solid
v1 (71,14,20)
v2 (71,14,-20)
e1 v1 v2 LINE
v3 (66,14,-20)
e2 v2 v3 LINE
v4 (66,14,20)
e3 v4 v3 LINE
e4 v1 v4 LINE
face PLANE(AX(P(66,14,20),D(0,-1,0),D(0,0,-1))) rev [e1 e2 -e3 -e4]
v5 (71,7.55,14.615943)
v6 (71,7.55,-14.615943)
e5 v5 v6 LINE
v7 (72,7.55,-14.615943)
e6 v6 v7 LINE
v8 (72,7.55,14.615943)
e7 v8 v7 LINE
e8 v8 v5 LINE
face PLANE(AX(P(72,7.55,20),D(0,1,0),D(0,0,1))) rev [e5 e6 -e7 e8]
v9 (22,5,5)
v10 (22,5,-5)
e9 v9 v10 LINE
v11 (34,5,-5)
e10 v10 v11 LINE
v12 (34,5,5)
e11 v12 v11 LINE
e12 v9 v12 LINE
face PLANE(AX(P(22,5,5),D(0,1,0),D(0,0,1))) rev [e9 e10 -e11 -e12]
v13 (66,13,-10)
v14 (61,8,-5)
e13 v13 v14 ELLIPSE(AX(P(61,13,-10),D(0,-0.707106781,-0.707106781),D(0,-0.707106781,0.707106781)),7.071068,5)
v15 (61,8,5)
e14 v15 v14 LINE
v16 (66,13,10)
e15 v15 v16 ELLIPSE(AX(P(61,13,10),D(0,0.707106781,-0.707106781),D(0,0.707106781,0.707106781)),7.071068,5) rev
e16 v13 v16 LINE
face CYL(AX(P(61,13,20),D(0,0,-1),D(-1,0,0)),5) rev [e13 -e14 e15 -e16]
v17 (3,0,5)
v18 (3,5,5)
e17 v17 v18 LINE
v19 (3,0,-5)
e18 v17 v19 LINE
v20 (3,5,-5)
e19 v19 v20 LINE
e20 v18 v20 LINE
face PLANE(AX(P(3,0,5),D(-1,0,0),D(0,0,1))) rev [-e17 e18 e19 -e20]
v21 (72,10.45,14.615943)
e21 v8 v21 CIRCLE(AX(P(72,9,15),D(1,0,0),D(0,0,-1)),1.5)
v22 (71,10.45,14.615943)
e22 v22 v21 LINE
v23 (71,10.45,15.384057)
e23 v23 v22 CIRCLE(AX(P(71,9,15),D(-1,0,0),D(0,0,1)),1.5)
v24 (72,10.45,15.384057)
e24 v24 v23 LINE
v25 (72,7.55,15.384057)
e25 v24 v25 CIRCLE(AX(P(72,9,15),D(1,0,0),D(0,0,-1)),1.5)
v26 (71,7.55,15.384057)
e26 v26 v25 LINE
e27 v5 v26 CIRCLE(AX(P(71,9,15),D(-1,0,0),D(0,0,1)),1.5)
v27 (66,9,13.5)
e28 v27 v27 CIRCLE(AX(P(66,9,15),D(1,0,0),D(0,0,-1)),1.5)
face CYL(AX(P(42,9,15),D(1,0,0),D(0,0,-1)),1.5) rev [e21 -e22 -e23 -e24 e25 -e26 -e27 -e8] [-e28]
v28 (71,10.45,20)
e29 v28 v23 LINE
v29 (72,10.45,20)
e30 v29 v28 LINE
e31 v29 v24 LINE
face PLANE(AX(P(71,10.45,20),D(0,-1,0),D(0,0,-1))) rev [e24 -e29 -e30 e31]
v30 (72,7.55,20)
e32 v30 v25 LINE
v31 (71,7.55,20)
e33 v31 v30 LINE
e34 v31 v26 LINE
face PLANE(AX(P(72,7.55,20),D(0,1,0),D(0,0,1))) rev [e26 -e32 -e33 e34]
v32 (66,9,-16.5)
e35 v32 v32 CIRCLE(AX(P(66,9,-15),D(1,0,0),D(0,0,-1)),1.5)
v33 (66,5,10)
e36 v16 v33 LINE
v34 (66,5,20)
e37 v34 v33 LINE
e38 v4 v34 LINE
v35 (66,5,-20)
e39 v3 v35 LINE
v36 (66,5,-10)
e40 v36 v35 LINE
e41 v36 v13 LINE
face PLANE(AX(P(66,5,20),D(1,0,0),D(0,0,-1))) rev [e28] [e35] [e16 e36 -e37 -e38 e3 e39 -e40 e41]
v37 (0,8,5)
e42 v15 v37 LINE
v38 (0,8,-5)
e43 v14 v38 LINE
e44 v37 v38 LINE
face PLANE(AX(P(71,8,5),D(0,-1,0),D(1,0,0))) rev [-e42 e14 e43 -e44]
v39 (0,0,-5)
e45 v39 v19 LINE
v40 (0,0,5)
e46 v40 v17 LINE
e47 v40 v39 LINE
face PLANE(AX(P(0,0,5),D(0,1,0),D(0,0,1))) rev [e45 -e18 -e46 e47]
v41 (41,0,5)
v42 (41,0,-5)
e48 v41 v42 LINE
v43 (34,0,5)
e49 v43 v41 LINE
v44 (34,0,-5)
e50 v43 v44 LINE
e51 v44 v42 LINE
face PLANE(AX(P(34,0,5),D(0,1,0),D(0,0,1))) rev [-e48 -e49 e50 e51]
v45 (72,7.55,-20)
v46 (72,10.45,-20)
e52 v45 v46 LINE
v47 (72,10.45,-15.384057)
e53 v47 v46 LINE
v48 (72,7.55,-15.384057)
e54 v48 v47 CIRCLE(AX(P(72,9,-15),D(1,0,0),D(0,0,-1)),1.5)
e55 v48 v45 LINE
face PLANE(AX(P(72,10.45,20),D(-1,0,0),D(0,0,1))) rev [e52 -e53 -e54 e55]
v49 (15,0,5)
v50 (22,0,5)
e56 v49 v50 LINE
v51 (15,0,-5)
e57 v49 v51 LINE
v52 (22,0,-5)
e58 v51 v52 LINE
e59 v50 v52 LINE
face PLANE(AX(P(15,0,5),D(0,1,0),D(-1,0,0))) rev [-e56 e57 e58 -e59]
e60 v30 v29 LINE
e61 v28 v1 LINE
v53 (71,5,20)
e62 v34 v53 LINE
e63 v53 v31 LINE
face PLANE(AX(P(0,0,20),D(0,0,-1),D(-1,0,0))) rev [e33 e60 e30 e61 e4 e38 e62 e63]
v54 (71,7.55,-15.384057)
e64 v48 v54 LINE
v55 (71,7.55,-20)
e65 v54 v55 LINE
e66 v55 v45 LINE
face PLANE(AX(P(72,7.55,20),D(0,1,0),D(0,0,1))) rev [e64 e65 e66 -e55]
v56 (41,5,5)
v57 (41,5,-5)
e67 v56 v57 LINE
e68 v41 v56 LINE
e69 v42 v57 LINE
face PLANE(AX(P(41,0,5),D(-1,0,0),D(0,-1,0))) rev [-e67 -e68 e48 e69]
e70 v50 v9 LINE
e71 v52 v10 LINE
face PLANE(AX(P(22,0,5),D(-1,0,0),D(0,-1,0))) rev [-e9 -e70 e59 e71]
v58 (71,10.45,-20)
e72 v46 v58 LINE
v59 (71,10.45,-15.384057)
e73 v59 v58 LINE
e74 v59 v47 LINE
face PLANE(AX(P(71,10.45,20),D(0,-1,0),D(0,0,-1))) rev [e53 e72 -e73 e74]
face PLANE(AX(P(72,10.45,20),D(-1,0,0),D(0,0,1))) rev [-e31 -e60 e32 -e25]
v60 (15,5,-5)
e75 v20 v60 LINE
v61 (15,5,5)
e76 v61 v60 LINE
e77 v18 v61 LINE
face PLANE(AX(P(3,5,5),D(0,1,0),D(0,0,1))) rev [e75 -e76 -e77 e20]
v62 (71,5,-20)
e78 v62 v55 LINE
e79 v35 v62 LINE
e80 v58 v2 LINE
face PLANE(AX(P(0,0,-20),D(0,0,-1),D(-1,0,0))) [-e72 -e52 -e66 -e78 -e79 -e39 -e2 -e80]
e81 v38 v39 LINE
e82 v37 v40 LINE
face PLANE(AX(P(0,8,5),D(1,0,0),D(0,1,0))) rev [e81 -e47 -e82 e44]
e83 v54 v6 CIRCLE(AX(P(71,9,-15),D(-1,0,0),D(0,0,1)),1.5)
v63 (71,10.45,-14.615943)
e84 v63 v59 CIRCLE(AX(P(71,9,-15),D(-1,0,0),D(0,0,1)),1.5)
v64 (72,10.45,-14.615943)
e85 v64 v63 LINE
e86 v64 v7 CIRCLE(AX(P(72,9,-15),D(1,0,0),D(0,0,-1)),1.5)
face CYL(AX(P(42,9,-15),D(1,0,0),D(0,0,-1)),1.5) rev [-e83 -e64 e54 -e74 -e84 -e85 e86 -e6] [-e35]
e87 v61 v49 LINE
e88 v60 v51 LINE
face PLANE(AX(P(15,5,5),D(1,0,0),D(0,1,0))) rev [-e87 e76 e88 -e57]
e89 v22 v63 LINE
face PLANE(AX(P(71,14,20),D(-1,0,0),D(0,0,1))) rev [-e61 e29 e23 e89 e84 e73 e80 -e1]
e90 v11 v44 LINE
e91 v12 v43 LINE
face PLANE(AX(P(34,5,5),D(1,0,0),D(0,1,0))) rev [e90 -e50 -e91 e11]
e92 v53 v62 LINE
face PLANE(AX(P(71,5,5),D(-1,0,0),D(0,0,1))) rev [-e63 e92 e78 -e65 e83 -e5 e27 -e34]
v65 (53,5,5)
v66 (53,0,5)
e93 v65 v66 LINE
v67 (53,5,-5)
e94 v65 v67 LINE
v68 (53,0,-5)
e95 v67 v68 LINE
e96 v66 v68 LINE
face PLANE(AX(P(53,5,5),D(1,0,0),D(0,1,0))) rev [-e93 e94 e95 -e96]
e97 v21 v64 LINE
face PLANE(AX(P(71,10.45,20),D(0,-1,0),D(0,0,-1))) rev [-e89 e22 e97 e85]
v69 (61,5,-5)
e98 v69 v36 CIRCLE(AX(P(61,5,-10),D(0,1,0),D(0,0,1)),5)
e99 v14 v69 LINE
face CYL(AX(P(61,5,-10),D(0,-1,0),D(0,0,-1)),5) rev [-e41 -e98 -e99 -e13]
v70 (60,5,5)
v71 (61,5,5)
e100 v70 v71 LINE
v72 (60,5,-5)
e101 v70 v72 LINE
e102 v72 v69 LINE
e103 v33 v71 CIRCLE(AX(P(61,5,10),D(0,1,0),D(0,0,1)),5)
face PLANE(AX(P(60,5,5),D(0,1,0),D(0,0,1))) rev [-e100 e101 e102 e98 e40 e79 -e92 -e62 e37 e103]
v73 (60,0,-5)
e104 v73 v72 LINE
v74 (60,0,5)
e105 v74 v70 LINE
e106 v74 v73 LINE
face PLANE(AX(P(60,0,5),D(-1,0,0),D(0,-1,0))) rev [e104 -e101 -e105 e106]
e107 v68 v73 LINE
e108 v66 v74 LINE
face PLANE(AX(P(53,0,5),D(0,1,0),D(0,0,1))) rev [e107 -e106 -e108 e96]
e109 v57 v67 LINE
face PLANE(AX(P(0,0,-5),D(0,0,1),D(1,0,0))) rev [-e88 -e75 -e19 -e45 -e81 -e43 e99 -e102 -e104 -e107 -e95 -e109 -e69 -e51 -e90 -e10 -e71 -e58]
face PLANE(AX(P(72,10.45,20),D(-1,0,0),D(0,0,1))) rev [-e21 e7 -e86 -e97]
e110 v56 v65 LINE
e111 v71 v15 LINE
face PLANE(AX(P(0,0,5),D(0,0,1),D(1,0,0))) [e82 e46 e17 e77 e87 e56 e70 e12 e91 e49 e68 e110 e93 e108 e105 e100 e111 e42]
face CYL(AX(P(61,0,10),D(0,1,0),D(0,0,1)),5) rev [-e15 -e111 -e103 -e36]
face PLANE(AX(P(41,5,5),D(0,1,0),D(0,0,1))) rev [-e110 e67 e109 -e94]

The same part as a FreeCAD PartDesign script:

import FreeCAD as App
import Part
import Sketcher


def edges_at(feature, points):
    """Names of the edges that pass closest to the given points."""
    edges = feature.Shape.Edges
    near = lambda p: min(range(len(edges)), key=lambda i: edges[i].distToShape(Part.Vertex(*p))[0])
    return sorted({f"Edge{near(p) + 1}" for p in points})

doc = App.newDocument("Part")
body = doc.addObject("PartDesign::Body", "Body")

# Sketch on XY plane
sketch1 = body.newObject("Sketcher::SketchObject", "Sketch")
sketch1.AttachmentSupport = (doc.getObject("XY_Plane"), [""])
sketch1.MapMode = "FlatFace"
sketch1.addGeometry([
    Part.LineSegment(App.Vector(3, 0, 0), App.Vector(3, 5, 0)),  # 0
    Part.LineSegment(App.Vector(3, 5, 0), App.Vector(15, 5, 0)),  # 1
    Part.LineSegment(App.Vector(15, 5, 0), App.Vector(15, 0, 0)),  # 2
    Part.LineSegment(App.Vector(15, 0, 0), App.Vector(22, 0, 0)),  # 3
    Part.LineSegment(App.Vector(22, 0, 0), App.Vector(22, 5, 0)),  # 4
    Part.LineSegment(App.Vector(22, 5, 0), App.Vector(34, 5, 0)),  # 5
    Part.LineSegment(App.Vector(34, 5, 0), App.Vector(34, 0, 0)),  # 6
    Part.LineSegment(App.Vector(34, 0, 0), App.Vector(41, 0, 0)),  # 7
    Part.LineSegment(App.Vector(41, 0, 0), App.Vector(41, 5, 0)),  # 8
    Part.LineSegment(App.Vector(41, 5, 0), App.Vector(53, 5, 0)),  # 9
    Part.LineSegment(App.Vector(53, 5, 0), App.Vector(53, 0, 0)),  # 10
    Part.LineSegment(App.Vector(53, 0, 0), App.Vector(60, 0, 0)),  # 11
    Part.LineSegment(App.Vector(60, 0, 0), App.Vector(60, 5, 0)),  # 12
    Part.LineSegment(App.Vector(60, 5, 0), App.Vector(71, 5, 0)),  # 13
    Part.LineSegment(App.Vector(71, 5, 0), App.Vector(71, 8, 0)),  # 14
    Part.LineSegment(App.Vector(71, 8, 0), App.Vector(0, 8, 0)),  # 15
    Part.LineSegment(App.Vector(0, 8, 0), App.Vector(0, 0, 0)),  # 16
    Part.LineSegment(App.Vector(0, 0, 0), App.Vector(3, 0, 0)),  # 17
], False)
sketch1.addConstraint([
    Sketcher.Constraint("Coincident", 0, 2, 1, 1),
    Sketcher.Constraint("Coincident", 1, 2, 2, 1),
    Sketcher.Constraint("Coincident", 2, 2, 3, 1),
    Sketcher.Constraint("Coincident", 3, 2, 4, 1),
    Sketcher.Constraint("Coincident", 4, 2, 5, 1),
    Sketcher.Constraint("Coincident", 5, 2, 6, 1),
    Sketcher.Constraint("Coincident", 6, 2, 7, 1),
    Sketcher.Constraint("Coincident", 7, 2, 8, 1),
    Sketcher.Constraint("Coincident", 8, 2, 9, 1),
    Sketcher.Constraint("Coincident", 9, 2, 10, 1),
    Sketcher.Constraint("Coincident", 10, 2, 11, 1),
    Sketcher.Constraint("Coincident", 11, 2, 12, 1),
    Sketcher.Constraint("Coincident", 12, 2, 13, 1),
    Sketcher.Constraint("Coincident", 13, 2, 14, 1),
    Sketcher.Constraint("Coincident", 14, 2, 15, 1),
    Sketcher.Constraint("Coincident", 15, 2, 16, 1),
    Sketcher.Constraint("Coincident", 16, 2, 17, 1),
    Sketcher.Constraint("Coincident", 17, 2, 0, 1),
    Sketcher.Constraint("Vertical", 0),
    Sketcher.Constraint("Horizontal", 1),
    Sketcher.Constraint("Vertical", 2),
    Sketcher.Constraint("Horizontal", 3),
    Sketcher.Constraint("Vertical", 4),
    Sketcher.Constraint("Horizontal", 5),
    Sketcher.Constraint("Vertical", 6),
    Sketcher.Constraint("Horizontal", 7),
    Sketcher.Constraint("Vertical", 8),
    Sketcher.Constraint("Horizontal", 9),
    Sketcher.Constraint("Vertical", 10),
    Sketcher.Constraint("Horizontal", 11),
    Sketcher.Constraint("Vertical", 12),
    Sketcher.Constraint("Horizontal", 13),
    Sketcher.Constraint("Vertical", 14),
    Sketcher.Constraint("Horizontal", 15),
    Sketcher.Constraint("Vertical", 16),
    Sketcher.Constraint("Horizontal", 17),
    Sketcher.Constraint("Coincident", 16, 2, -1, 1),
    Sketcher.Constraint("PointOnObject", 2, 2, -1),
    Sketcher.Constraint("PointOnObject", 6, 2, -1),
    Sketcher.Constraint("PointOnObject", 10, 2, -1),
    Sketcher.Constraint("Horizontal", 1, 2, 4, 2),
    Sketcher.Constraint("Horizontal", 5, 2, 8, 2),
    Sketcher.Constraint("Horizontal", 9, 2, 12, 2),
    Sketcher.Constraint("Equal", 1, 5),
    Sketcher.Constraint("Equal", 3, 7),
    Sketcher.Constraint("Equal", 5, 9),
    Sketcher.Constraint("Equal", 7, 11),
    Sketcher.Constraint("Equal", 17, 14),
    Sketcher.Constraint("DistanceX", 1, 1, 1, 2, 12.0),
    Sketcher.Constraint("DistanceX", 3, 1, 3, 2, 7.0),
    Sketcher.Constraint("DistanceX", 13, 1, 13, 2, 11.0),
    Sketcher.Constraint("DistanceX", 15, 2, 15, 1, 71.0),
    Sketcher.Constraint("DistanceY", 0, 1, 0, 2, 5.0),
])
pad1 = body.newObject("PartDesign::Pad", "Pad")
pad1.Profile = sketch1
pad1.Length = 10
pad1.Midplane = True

# Sketch on XY plane
sketch2 = body.newObject("Sketcher::SketchObject", "Sketch001")
sketch2.AttachmentSupport = (doc.getObject("XY_Plane"), [""])
sketch2.MapMode = "FlatFace"
sketch2.addGeometry([
    Part.LineSegment(App.Vector(71, 14, 0), App.Vector(66, 14, 0)),  # 0
    Part.LineSegment(App.Vector(66, 14, 0), App.Vector(66, 5, 0)),  # 1
    Part.LineSegment(App.Vector(66, 5, 0), App.Vector(71, 5, 0)),  # 2
    Part.LineSegment(App.Vector(71, 5, 0), App.Vector(71, 7.5, 0)),  # 3
    Part.LineSegment(App.Vector(71, 7.5, 0), App.Vector(72, 7.5, 0)),  # 4
    Part.LineSegment(App.Vector(72, 7.5, 0), App.Vector(72, 10.4, 0)),  # 5
    Part.LineSegment(App.Vector(72, 10.4, 0), App.Vector(71, 10.4, 0)),  # 6
    Part.LineSegment(App.Vector(71, 10.4, 0), App.Vector(71, 14, 0)),  # 7
], False)
sketch2.addConstraint([
    Sketcher.Constraint("Coincident", 0, 2, 1, 1),
    Sketcher.Constraint("Coincident", 1, 2, 2, 1),
    Sketcher.Constraint("Coincident", 2, 2, 3, 1),
    Sketcher.Constraint("Coincident", 3, 2, 4, 1),
    Sketcher.Constraint("Coincident", 4, 2, 5, 1),
    Sketcher.Constraint("Coincident", 5, 2, 6, 1),
    Sketcher.Constraint("Coincident", 6, 2, 7, 1),
    Sketcher.Constraint("Coincident", 7, 2, 0, 1),
    Sketcher.Constraint("Horizontal", 0),
    Sketcher.Constraint("Vertical", 1),
    Sketcher.Constraint("Horizontal", 2),
    Sketcher.Constraint("Vertical", 3),
    Sketcher.Constraint("Horizontal", 4),
    Sketcher.Constraint("Vertical", 5),
    Sketcher.Constraint("Horizontal", 6),
    Sketcher.Constraint("Vertical", 7),
    Sketcher.Constraint("Vertical", 3, 2, 6, 2),
    Sketcher.Constraint("DistanceX", 0, 2, 0, 1, 5.0),
    Sketcher.Constraint("DistanceX", 4, 1, 4, 2, 1.0),
    Sketcher.Constraint("DistanceY", 1, 2, 1, 1, 9.0),
    Sketcher.Constraint("DistanceY", 5, 1, 5, 2, 2.9),
    Sketcher.Constraint("DistanceX", -1, 1, 0, 2, 66.0),
    Sketcher.Constraint("DistanceY", -1, 1, 0, 2, 14.0),
    Sketcher.Constraint("DistanceY", 3, 1, 3, 2, 2.55),
])
pad2 = body.newObject("PartDesign::Pad", "Pad001")
pad2.Profile = sketch2
pad2.Length = 40
pad2.Midplane = True

# Sketch on YZ plane
sketch3 = body.newObject("Sketcher::SketchObject", "Sketch002")
sketch3.AttachmentSupport = (doc.getObject("YZ_Plane"), [""])
sketch3.MapMode = "FlatFace"
sketch3.AttachmentOffset = App.Placement(App.Vector(0, 0, 72), App.Rotation())
sketch3.addGeometry([
    Part.Circle(App.Vector(9, 15, 0), App.Vector(0, 0, 1), 1.5),
    Part.Circle(App.Vector(9, -15, 0), App.Vector(0, 0, 1), 1.5),
], False)
sketch3.addConstraint([
    Sketcher.Constraint("Equal", 0, 1),
    Sketcher.Constraint("Symmetric", 0, 3, 1, 3, -1),
    Sketcher.Constraint("Diameter", 0, 3.0),
    Sketcher.Constraint("DistanceX", -1, 1, 0, 3, 9.0),
    Sketcher.Constraint("DistanceY", -1, 1, 0, 3, 15.0),
])
pocket1 = body.newObject("PartDesign::Pocket", "Pocket")
pocket1.Profile = sketch3
pocket1.Length = 30
doc.recompute()

fillet = body.newObject("PartDesign::Fillet", "Fillet")
fillet.Base = (pocket1, edges_at(pocket1, [(66, 6.5, -5), (66, 6.5, 5), (66, 8, 0)]))
fillet.Radius = 5

doc.recompute()
